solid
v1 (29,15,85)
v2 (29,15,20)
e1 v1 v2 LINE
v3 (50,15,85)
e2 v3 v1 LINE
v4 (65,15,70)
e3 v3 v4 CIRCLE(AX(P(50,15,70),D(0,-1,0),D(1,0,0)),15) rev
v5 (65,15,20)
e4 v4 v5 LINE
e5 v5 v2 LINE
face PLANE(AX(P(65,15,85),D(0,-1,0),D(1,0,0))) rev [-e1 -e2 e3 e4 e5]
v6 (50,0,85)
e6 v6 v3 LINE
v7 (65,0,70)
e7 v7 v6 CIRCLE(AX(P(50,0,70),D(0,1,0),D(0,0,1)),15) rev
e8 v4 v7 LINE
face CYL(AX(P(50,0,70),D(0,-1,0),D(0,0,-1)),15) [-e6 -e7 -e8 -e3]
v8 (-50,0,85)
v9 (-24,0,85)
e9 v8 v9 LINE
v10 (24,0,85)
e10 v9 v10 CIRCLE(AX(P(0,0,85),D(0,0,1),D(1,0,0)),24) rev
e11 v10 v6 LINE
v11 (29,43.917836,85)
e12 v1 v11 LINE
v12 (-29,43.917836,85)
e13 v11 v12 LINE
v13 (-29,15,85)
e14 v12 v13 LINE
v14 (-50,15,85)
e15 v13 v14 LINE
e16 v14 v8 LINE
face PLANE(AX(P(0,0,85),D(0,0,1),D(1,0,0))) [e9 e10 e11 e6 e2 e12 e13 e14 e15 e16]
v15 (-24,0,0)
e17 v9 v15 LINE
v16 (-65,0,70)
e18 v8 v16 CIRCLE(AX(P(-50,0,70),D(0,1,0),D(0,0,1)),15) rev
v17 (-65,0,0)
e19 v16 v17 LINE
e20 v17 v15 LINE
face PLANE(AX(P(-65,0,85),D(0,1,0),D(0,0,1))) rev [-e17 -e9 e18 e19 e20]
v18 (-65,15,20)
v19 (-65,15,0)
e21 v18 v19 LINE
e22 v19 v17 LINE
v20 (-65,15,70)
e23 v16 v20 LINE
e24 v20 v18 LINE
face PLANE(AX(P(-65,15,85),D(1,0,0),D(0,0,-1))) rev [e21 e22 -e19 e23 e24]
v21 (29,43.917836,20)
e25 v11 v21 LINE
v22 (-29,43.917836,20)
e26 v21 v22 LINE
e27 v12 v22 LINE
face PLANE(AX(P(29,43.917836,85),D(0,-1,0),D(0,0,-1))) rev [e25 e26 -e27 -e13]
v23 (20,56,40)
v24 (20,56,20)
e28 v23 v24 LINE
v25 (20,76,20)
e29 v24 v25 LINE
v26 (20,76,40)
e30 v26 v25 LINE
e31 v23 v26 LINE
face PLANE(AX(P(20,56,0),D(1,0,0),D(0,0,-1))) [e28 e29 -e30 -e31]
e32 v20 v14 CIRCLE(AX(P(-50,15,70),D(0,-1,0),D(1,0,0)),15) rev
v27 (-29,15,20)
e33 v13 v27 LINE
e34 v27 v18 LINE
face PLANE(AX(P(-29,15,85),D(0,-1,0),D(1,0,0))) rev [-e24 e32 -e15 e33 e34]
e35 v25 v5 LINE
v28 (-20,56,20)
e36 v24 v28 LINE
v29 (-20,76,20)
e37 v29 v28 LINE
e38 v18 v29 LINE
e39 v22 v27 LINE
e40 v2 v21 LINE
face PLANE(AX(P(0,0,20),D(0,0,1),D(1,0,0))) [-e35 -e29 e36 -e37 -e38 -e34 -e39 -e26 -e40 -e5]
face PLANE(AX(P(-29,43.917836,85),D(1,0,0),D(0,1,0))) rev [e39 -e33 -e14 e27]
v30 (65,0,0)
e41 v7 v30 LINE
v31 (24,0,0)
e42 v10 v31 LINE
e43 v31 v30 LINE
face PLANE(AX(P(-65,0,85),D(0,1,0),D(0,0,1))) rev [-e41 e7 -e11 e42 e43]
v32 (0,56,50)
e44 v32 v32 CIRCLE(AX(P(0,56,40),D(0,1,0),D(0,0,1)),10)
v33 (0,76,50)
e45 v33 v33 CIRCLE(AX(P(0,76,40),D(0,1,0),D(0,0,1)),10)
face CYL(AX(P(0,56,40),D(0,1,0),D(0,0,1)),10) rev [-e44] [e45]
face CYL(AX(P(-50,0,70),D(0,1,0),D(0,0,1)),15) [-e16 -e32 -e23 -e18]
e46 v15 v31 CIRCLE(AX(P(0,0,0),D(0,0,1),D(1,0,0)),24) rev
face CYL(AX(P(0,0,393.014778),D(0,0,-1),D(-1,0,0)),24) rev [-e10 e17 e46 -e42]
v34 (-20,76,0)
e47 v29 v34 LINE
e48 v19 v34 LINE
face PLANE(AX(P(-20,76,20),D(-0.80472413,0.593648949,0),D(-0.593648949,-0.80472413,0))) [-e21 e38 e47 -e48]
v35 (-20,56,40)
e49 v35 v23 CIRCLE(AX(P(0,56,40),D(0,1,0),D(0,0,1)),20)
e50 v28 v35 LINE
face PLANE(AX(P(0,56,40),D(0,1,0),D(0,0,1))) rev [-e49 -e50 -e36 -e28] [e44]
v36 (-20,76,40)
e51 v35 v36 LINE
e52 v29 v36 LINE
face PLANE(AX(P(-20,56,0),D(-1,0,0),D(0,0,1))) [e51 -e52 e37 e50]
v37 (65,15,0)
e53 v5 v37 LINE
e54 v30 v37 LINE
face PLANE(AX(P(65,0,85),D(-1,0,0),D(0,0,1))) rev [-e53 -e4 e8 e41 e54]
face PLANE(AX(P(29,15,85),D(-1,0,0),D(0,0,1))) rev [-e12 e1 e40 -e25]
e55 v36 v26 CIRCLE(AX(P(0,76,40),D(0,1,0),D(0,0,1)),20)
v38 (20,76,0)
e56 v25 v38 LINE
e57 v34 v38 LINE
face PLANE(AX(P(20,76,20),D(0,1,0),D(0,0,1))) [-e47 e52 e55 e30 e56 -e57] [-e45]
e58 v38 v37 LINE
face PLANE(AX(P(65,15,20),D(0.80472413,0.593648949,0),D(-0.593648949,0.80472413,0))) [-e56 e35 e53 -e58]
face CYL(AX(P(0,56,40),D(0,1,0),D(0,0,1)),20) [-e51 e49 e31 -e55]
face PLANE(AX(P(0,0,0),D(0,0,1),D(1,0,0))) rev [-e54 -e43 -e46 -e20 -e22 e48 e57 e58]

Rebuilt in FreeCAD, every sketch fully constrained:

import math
import FreeCAD as App
import Part
import Sketcher


def edges_at(feature, points):
    """Names of the edges that pass closest to the given points."""
    edges = feature.Shape.Edges
    near = lambda p: min(range(len(edges)), key=lambda i: edges[i].distToShape(Part.Vertex(*p))[0])
    return sorted({f"Edge{near(p) + 1}" for p in points})


def add_polygon(sketch, points):
    """Adds a closed chain of lines whose ends are joined by coincident constraints."""
    first, n = sketch.GeometryCount, len(points)
    for a, b in zip(points, points[1:] + points[:1]):
        sketch.addGeometry(Part.LineSegment(App.Vector(*a, 0), App.Vector(*b, 0)), False)
    for i in range(n):
        sketch.addConstraint(Sketcher.Constraint("Coincident", first + i, 2, first + (i + 1) % n, 1))

doc = App.newDocument("Part")
body = doc.addObject("PartDesign::Body", "Body")

# Sketch on XY plane
sketch1 = body.newObject("Sketcher::SketchObject", "Sketch")
sketch1.AttachmentSupport = (doc.getObject("XY_Plane"), [""])
sketch1.MapMode = "FlatFace"
add_polygon(sketch1, [(-65, 0), (65, 0), (65, 15), (29, 15), (29, 44), (-29, 44), (-29, 15), (-65, 15)])  # lines 0-7
sketch1.addConstraint(Sketcher.Constraint("Horizontal", 0))
sketch1.addConstraint(Sketcher.Constraint("Vertical", 1))
sketch1.addConstraint(Sketcher.Constraint("Horizontal", 2))
sketch1.addConstraint(Sketcher.Constraint("Vertical", 3))
sketch1.addConstraint(Sketcher.Constraint("Horizontal", 4))
sketch1.addConstraint(Sketcher.Constraint("Vertical", 5))
sketch1.addConstraint(Sketcher.Constraint("Horizontal", 6))
sketch1.addConstraint(Sketcher.Constraint("Vertical", 7))
sketch1.addConstraint(Sketcher.Constraint("Symmetric", 0, 2, 7, 2, -1, 1))
sketch1.addConstraint(Sketcher.Constraint("Symmetric", 2, 2, 5, 2, -2))
sketch1.addConstraint(Sketcher.Constraint("DistanceX", 0, 1, 0, 2, 130.0))
sketch1.addConstraint(Sketcher.Constraint("DistanceX", 2, 2, 2, 1, 36.0))
sketch1.addConstraint(Sketcher.Constraint("DistanceY", 1, 1, 1, 2, 15.0))
sketch1.addConstraint(Sketcher.Constraint("DistanceY", 3, 1, 3, 2, 28.917836))
pad1 = body.newObject("PartDesign::Pad", "Pad")
pad1.Profile = sketch1
pad1.Length = 85

# Sketch on XY plane
sketch2 = body.newObject("Sketcher::SketchObject", "Sketch001")
sketch2.AttachmentSupport = (doc.getObject("XY_Plane"), [""])
sketch2.MapMode = "FlatFace"
sketch2.AttachmentOffset = App.Placement(App.Vector(0, 0, 85), App.Rotation())
sketch2.addGeometry(Part.ArcOfCircle(Part.Circle(App.Vector(0, 0, 0), App.Vector(0, 0, 1), 24), math.radians(0), math.radians(180)), False)
sketch2.addGeometry(Part.LineSegment(App.Vector(-24, 0, 0), App.Vector(24, 0, 0)), False)
sketch2.addConstraint(Sketcher.Constraint("Coincident", 0, 1, 1, 2))
sketch2.addConstraint(Sketcher.Constraint("Coincident", 1, 1, 0, 2))
sketch2.addConstraint(Sketcher.Constraint("Horizontal", 1))
sketch2.addConstraint(Sketcher.Constraint("Coincident", 0, 3, -1, 1))
sketch2.addConstraint(Sketcher.Constraint("PointOnObject", 0, 1, -1))
sketch2.addConstraint(Sketcher.Constraint("Radius", 0, 24.0))
pocket1 = body.newObject("PartDesign::Pocket", "Pocket")
pocket1.Profile = sketch2
pocket1.Type = "ThroughAll"
pocket1.Midplane = True

# Sketch on XY plane
sketch3 = body.newObject("Sketcher::SketchObject", "Sketch002")
sketch3.AttachmentSupport = (doc.getObject("XY_Plane"), [""])
sketch3.MapMode = "FlatFace"
add_polygon(sketch3, [(20, 76), (65, 15), (29, 15), (29, 44), (-29, 44), (-29, 15), (-65, 15), (-20, 76)])  # lines 0-7
sketch3.addConstraint(Sketcher.Constraint("Horizontal", 1))
sketch3.addConstraint(Sketcher.Constraint("Vertical", 2))
sketch3.addConstraint(Sketcher.Constraint("Horizontal", 3))
sketch3.addConstraint(Sketcher.Constraint("Vertical", 4))
sketch3.addConstraint(Sketcher.Constraint("Horizontal", 5))
sketch3.addConstraint(Sketcher.Constraint("Horizontal", 7))
sketch3.addConstraint(Sketcher.Constraint("Symmetric", 1, 2, 4, 2, -2))
sketch3.addConstraint(Sketcher.Constraint("Equal", 1, 5))
sketch3.addConstraint(Sketcher.Constraint("Equal", 0, 6))
sketch3.addConstraint(Sketcher.Constraint("DistanceX", 1, 2, 1, 1, 36.0))
sketch3.addConstraint(Sketcher.Constraint("DistanceX", 3, 2, 3, 1, 58.0))
sketch3.addConstraint(Sketcher.Constraint("DistanceX", 7, 1, 7, 2, 40.0))
sketch3.addConstraint(Sketcher.Constraint("DistanceY", -1, 1, 0, 2, 15.0))
sketch3.addConstraint(Sketcher.Constraint("DistanceY", -1, 1, 6, 2, 76.0))
sketch3.addConstraint(Sketcher.Constraint("DistanceY", 2, 1, 2, 2, 28.917836))
pad2 = body.newObject("PartDesign::Pad", "Pad001")
pad2.Profile = sketch3
pad2.Length = 20

# Sketch on XZ plane
sketch4 = body.newObject("Sketcher::SketchObject", "Sketch003")
sketch4.AttachmentSupport = (doc.getObject("XZ_Plane"), [""])
sketch4.MapMode = "FlatFace"
sketch4.AttachmentOffset = App.Placement(App.Vector(0, 0, -76), App.Rotation())
sketch4.addGeometry(Part.LineSegment(App.Vector(-20, 0, 0), App.Vector(-20, 40, 0)), False)
sketch4.addGeometry(Part.ArcOfCircle(Part.Circle(App.Vector(0, 40, 0), App.Vector(0, 0, 1), 20), math.radians(0), math.radians(180)), False)
sketch4.addGeometry(Part.LineSegment(App.Vector(20, 40, 0), App.Vector(20, 0, 0)), False)
sketch4.addGeometry(Part.LineSegment(App.Vector(20, 0, 0), App.Vector(-20, 0, 0)), False)
sketch4.addGeometry(Part.Circle(App.Vector(0, 40, 0), App.Vector(0, 0, 1), 10), False)
sketch4.addConstraint(Sketcher.Constraint("Tangent", 0, 2, 1, 2))
sketch4.addConstraint(Sketcher.Constraint("Tangent", 1, 1, 2, 1))
sketch4.addConstraint(Sketcher.Constraint("Coincident", 2, 2, 3, 1))
sketch4.addConstraint(Sketcher.Constraint("Coincident", 3, 2, 0, 1))
sketch4.addConstraint(Sketcher.Constraint("Vertical", 0))
sketch4.addConstraint(Sketcher.Constraint("Vertical", 2))
sketch4.addConstraint(Sketcher.Constraint("Horizontal", 3))
sketch4.addConstraint(Sketcher.Constraint("Coincident", 4, 3, 1, 3))
sketch4.addConstraint(Sketcher.Constraint("Symmetric", 2, 2, 3, 2, -1, 1))
sketch4.addConstraint(Sketcher.Constraint("Equal", 3, 0))
sketch4.addConstraint(Sketcher.Constraint("Diameter", 4, 20.0))
sketch4.addConstraint(Sketcher.Constraint("Radius", 1, 20.0))
pad3 = body.newObject("PartDesign::Pad", "Pad002")
pad3.Profile = sketch4
pad3.Length = 20
doc.recompute()

fillet = body.newObject("PartDesign::Fillet", "Fillet")
fillet.Base = (pad3, edges_at(pad3, [(65, 7.5, 85), (-65, 7.5, 85)]))
fillet.Radius = 15

doc.recompute()
